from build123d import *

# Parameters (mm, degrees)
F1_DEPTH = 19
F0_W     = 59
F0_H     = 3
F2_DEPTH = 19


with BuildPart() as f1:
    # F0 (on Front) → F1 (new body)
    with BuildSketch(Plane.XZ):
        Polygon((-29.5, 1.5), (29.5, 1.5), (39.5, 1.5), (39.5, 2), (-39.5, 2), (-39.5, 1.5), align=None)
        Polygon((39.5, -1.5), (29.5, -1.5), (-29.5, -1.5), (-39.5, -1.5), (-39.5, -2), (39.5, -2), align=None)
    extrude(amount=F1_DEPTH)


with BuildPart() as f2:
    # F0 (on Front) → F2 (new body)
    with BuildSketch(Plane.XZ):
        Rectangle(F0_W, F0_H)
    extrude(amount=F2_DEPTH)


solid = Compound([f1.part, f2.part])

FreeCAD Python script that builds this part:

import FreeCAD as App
import Part
import Sketcher
from FreeCAD import Vector
Q = App.Units.Quantity


def add_polygon(sketch, points):
    """Adds a closed chain of lines whose ends are joined by coincident constraints."""
    first, n = sketch.GeometryCount, len(points)
    for a, b in zip(points, points[1:] + points[:1]):
        sketch.addGeometry(Part.LineSegment(App.Vector(*a, 0), App.Vector(*b, 0)), False)
    for i in range(n):
        sketch.addConstraint(Sketcher.Constraint("Coincident", first + i, 2, first + (i + 1) % n, 1))

doc = App.newDocument("Part")
body = doc.addObject("PartDesign::Body", "Body")
body.AllowCompound = True

sketch1 = body.newObject("Sketcher::SketchObject", "Sketch")
sketch1.AttachmentSupport = (doc.getObject("XZ_Plane"), [""])
sketch1.MapMode = "FlatFace"
add_polygon(sketch1, [(39.5, 1.5), (39.5, 2), (-39.5, 2), (-39.5, 1.5)])
add_polygon(sketch1, [(39.5, -1.5), (-39.5, -1.5), (-39.5, -2), (39.5, -2)])
sketch1.addConstraint(Sketcher.Constraint("Vertical", 0))
sketch1.addConstraint(Sketcher.Constraint("Horizontal", 1))
sketch1.addConstraint(Sketcher.Constraint("Vertical", 2))
sketch1.addConstraint(Sketcher.Constraint("Horizontal", 3))
sketch1.addConstraint(Sketcher.Constraint("Horizontal", 4))
sketch1.addConstraint(Sketcher.Constraint("Vertical", 5))
sketch1.addConstraint(Sketcher.Constraint("Horizontal", 6))
sketch1.addConstraint(Sketcher.Constraint("Vertical", 7))
sketch1.addConstraint(Sketcher.Constraint("Symmetric", 3, 2, 4, 2, -1, 1))
sketch1.addConstraint(Sketcher.Constraint("Symmetric", 1, 2, 6, 2, -1, 1))
sketch1.addConstraint(Sketcher.Constraint("Vertical", 2, 2, 4, 2))
sketch1.addConstraint(Sketcher.Constraint("DistanceX", 1, 2, 1, 1, Q("79 mm")))
sketch1.addConstraint(Sketcher.Constraint("DistanceY", 0, 1, 0, 2, Q("0.5 mm")))
sketch1.addConstraint(Sketcher.Constraint("DistanceY", -1, 1, 0, 2, Q("2 mm")))
pad1 = body.newObject("PartDesign::Pad", "Pad")
pad1.Profile = sketch1
pad1.Length = 19
body2 = doc.addObject("PartDesign::Body", "Body001")

sketch2 = body2.newObject("Sketcher::SketchObject", "Sketch001")
sketch2.AttachmentSupport = (doc.getObject("XZ_Plane001"), [""])
sketch2.MapMode = "FlatFace"
add_polygon(sketch2, [(-29.5, 1.5), (-29.5, -1.5), (29.5, -1.5), (29.5, 1.5)])
sketch2.addConstraint(Sketcher.Constraint("Vertical", 0))
sketch2.addConstraint(Sketcher.Constraint("Horizontal", 1))
sketch2.addConstraint(Sketcher.Constraint("Vertical", 2))
sketch2.addConstraint(Sketcher.Constraint("Horizontal", 3))
sketch2.addConstraint(Sketcher.Constraint("Symmetric", 0, 2, 2, 2, -1, 1))
sketch2.addConstraint(Sketcher.Constraint("DistanceX", 1, 1, 1, 2, Q("59 mm")))
sketch2.addConstraint(Sketcher.Constraint("DistanceY", 0, 2, 0, 1, Q("3 mm")))
pad2 = body2.newObject("PartDesign::Pad", "Pad001")
pad2.Profile = sketch2
pad2.Length = 19

doc.recompute()
